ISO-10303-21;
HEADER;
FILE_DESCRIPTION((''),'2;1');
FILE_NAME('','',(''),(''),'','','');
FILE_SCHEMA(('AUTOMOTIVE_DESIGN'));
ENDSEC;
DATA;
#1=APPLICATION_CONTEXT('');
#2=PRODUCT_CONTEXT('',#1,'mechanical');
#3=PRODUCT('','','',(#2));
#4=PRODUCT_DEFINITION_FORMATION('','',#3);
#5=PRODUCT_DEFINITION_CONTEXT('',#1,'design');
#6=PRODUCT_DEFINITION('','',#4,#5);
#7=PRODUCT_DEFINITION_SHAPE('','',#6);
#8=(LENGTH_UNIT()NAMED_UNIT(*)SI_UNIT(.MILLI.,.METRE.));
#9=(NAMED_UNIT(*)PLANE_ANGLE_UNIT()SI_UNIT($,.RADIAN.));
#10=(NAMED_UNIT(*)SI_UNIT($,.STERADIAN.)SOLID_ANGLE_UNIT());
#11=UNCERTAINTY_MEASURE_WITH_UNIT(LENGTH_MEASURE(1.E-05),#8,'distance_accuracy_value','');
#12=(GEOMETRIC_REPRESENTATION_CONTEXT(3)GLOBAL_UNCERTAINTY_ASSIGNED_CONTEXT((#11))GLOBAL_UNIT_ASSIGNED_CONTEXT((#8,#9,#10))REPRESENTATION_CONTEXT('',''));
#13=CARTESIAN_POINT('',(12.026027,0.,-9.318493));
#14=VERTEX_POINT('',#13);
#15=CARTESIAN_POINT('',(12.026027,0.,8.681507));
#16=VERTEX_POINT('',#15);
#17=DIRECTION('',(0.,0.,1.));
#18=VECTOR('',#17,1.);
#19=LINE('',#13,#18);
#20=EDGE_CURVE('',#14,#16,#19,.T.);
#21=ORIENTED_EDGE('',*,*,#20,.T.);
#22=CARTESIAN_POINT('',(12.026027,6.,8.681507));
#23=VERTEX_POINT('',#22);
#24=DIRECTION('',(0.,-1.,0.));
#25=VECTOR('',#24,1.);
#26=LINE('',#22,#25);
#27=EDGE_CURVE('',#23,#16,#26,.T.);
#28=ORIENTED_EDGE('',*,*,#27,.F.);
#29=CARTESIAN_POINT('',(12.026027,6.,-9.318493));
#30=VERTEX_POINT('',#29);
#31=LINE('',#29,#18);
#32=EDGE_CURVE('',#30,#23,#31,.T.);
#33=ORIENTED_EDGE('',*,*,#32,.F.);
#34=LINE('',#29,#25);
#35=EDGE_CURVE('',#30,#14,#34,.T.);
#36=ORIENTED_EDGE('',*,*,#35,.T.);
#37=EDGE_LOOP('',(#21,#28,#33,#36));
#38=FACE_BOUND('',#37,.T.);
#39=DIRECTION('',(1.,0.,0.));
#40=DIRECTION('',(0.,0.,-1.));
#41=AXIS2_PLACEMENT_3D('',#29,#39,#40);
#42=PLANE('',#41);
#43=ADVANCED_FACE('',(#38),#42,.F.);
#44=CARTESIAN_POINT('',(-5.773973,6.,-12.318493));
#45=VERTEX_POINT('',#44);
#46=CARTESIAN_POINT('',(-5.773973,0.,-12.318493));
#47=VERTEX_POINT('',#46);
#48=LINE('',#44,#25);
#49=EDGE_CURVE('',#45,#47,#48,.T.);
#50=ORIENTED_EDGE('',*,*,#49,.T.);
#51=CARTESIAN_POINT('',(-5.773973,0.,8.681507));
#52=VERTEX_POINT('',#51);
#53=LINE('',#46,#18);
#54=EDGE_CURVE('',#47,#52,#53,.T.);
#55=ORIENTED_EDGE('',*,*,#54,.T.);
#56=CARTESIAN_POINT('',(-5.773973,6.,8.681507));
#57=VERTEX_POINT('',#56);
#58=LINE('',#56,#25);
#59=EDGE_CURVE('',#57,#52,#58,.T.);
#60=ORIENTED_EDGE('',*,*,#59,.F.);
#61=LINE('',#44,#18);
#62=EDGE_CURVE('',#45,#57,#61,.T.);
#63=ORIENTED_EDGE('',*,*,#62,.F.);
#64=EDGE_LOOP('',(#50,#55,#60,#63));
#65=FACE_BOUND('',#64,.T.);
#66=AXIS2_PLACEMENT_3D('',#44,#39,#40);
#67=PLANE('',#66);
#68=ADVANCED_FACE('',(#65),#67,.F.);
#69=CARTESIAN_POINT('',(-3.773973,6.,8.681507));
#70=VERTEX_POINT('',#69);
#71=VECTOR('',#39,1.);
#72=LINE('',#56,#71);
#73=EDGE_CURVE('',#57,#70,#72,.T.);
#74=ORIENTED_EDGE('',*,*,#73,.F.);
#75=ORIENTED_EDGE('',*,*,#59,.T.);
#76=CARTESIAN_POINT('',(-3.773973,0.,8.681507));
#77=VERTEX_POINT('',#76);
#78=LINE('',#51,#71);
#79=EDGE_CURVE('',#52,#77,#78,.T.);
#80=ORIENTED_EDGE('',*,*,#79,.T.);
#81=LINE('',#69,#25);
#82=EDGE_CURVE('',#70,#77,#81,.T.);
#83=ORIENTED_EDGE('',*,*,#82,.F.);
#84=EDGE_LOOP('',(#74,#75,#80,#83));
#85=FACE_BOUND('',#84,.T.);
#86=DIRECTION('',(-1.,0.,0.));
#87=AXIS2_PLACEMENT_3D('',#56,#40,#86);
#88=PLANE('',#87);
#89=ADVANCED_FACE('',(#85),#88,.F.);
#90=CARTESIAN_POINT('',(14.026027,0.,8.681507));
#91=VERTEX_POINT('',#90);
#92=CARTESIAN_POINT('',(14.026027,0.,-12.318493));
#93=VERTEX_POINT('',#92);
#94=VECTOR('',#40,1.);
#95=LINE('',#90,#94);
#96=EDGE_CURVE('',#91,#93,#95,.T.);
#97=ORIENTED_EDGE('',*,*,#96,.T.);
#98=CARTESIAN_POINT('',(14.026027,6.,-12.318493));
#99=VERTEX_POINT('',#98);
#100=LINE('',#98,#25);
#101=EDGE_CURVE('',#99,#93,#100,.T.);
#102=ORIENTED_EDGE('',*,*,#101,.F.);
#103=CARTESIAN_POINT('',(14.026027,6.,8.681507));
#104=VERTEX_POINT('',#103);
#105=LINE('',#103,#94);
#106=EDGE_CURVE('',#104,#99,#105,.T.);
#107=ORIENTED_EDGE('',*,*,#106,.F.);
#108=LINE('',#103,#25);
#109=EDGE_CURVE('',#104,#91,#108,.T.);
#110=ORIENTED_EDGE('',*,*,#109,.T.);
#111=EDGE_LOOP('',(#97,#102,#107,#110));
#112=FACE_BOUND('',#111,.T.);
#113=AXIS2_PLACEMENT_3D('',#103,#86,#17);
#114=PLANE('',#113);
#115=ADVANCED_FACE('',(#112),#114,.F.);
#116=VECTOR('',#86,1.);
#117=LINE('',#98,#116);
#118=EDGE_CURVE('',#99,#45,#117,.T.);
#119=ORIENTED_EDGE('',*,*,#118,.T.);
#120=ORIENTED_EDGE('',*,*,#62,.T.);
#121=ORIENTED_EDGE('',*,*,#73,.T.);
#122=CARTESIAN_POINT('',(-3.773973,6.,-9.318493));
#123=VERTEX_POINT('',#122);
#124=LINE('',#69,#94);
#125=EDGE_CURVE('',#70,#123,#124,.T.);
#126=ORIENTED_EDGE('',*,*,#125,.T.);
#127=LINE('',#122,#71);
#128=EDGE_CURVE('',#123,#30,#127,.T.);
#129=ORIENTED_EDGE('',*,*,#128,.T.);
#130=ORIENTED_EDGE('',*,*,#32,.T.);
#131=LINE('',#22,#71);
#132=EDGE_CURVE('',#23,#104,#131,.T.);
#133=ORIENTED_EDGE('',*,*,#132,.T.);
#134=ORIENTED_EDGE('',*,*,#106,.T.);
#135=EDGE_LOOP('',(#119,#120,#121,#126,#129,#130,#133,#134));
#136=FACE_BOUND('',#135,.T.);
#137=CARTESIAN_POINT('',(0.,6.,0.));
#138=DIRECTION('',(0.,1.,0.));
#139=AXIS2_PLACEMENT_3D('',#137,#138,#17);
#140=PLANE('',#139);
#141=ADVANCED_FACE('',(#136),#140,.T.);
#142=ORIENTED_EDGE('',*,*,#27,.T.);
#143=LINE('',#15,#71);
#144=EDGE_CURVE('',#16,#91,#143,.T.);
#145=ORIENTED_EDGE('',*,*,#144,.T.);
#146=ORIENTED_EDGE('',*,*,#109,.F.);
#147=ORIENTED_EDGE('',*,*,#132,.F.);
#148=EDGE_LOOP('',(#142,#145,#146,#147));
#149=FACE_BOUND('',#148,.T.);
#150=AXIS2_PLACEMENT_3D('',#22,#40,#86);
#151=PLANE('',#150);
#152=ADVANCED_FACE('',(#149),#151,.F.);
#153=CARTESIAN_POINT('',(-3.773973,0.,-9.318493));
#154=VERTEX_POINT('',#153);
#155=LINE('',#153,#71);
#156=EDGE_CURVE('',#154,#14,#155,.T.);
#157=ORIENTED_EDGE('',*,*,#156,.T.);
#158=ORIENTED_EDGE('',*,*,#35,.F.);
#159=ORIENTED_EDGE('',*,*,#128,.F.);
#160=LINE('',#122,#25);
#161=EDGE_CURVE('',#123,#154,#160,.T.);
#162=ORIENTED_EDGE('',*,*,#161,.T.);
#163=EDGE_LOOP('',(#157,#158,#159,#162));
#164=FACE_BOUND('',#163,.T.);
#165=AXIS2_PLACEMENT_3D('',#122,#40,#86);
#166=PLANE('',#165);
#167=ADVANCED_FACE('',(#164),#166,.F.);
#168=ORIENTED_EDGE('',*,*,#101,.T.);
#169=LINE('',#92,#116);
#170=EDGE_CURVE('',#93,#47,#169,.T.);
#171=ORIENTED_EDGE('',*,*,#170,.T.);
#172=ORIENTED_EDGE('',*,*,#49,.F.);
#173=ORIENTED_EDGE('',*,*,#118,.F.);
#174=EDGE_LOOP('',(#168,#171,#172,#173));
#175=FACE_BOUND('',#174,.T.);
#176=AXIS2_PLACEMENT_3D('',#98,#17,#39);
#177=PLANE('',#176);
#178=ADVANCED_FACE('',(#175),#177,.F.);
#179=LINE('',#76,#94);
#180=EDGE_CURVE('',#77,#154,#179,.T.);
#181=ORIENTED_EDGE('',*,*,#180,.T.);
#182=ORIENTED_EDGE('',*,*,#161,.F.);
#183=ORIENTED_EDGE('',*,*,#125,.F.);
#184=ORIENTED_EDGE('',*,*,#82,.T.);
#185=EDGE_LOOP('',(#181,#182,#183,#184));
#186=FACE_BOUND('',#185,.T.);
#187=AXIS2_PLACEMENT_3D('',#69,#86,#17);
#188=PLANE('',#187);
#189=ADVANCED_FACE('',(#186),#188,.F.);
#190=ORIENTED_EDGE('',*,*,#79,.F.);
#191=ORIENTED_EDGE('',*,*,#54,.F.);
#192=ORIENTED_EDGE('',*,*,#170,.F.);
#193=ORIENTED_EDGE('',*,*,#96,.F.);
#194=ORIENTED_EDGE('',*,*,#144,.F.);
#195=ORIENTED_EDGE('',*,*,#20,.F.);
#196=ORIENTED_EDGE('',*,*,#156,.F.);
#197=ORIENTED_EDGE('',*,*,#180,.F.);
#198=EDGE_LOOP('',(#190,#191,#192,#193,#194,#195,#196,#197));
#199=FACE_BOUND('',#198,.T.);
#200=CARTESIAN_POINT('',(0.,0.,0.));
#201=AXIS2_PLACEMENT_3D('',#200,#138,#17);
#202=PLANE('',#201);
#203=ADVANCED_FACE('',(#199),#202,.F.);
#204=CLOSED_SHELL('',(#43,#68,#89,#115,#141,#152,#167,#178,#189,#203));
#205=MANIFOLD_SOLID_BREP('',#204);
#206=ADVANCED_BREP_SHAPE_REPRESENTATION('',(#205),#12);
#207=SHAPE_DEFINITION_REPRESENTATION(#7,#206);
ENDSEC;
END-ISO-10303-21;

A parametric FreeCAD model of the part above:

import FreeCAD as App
import Part
import Sketcher


def add_polygon(sketch, points):
    """Adds a closed chain of lines whose ends are joined by coincident constraints."""
    first, n = sketch.GeometryCount, len(points)
    for a, b in zip(points, points[1:] + points[:1]):
        sketch.addGeometry(Part.LineSegment(App.Vector(*a, 0), App.Vector(*b, 0)), False)
    for i in range(n):
        sketch.addConstraint(Sketcher.Constraint("Coincident", first + i, 2, first + (i + 1) % n, 1))

doc = App.newDocument("Part")
params = doc.addObject("Spreadsheet::Sheet", "Params")
for row, (alias, value) in enumerate([
    ("sketch1_width", "2 mm"),
    ("sketch1_height", "21 mm"),
    ("sketch1_height2", "18 mm"),
    ("sketch1_width2", "15.8 mm"),
    ("pad1_length", "6 mm"),
], start=1):
    params.set(f"A{row}", alias)
    params.set(f"B{row}", "=" + value)
    params.setAlias(f"B{row}", alias)

body = doc.addObject("PartDesign::Body", "Body")

# Sketch on XZ plane
sketch1 = doc.addObject("Sketcher::SketchObject", "Sketch")
body.addObject(sketch1)
sketch1.AttachmentSupport = (doc.XZ_Plane, [""])
sketch1.MapMode = "FlatFace"
add_polygon(sketch1, [(-5.8, -12.3), (-5.8, 8.7), (-3.8, 8.7), (-3.8, -9.3), (12, -9.3), (12, 8.7), (14, 8.7), (14, -12.3)])  # lines 0-7
sketch1.addConstraint([
    Sketcher.Constraint("Vertical", 0),
    Sketcher.Constraint("Horizontal", 1),
    Sketcher.Constraint("Vertical", 2),
    Sketcher.Constraint("Horizontal", 3),
    Sketcher.Constraint("Vertical", 4),
    Sketcher.Constraint("Horizontal", 5),
    Sketcher.Constraint("Vertical", 6),
    Sketcher.Constraint("Horizontal", 7),
    Sketcher.Constraint("Horizontal", 1, 2, 4, 2),
    Sketcher.Constraint("Equal", 1, 5),
    Sketcher.Constraint("DistanceX", 1, 1, 1, 2, 2.0),
    Sketcher.Constraint("DistanceY", 0, 1, 0, 2, 21.0),
    Sketcher.Constraint("DistanceY", 2, 2, 2, 1, 18.0),
    Sketcher.Constraint("DistanceX", 3, 1, 3, 2, 15.8),
    Sketcher.Constraint("DistanceX", 0, 2, -1, 1, 5.773973),
    Sketcher.Constraint("DistanceY", -1, 1, 0, 2, 8.681507),
])
sketch1.setExpression("Constraints[18]", "Params.sketch1_width")
sketch1.setExpression("Constraints[19]", "Params.sketch1_height")
sketch1.setExpression("Constraints[20]", "Params.sketch1_height2")
sketch1.setExpression("Constraints[21]", "Params.sketch1_width2")
pad1 = doc.addObject("PartDesign::Pad", "Pad")
body.addObject(pad1)
pad1.Profile = sketch1
pad1.setExpression("Length", "Params.pad1_length")
pad1.Reversed = True

doc.recompute()
